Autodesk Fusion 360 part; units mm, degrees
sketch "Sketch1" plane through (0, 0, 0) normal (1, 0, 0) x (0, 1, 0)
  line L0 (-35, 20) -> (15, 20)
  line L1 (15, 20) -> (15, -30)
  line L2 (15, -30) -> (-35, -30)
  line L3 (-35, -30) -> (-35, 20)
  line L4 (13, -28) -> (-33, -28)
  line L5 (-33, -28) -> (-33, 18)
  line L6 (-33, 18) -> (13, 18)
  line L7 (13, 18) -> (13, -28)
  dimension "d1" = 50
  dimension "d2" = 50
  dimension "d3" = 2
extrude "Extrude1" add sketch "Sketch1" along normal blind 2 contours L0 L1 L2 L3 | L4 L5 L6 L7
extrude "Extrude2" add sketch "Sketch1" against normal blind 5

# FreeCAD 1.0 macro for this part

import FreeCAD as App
import Part
import Sketcher

doc = App.newDocument("Part")
body = doc.addObject("PartDesign::Body", "Body")

# Sketch on YZ plane
sketch1 = body.newObject("Sketcher::SketchObject", "Sketch")
sketch1.AttachmentSupport = (doc.getObject("YZ_Plane"), [""])
sketch1.MapMode = "FlatFace"
sketch1.addGeometry([
    Part.LineSegment(App.Vector(15, 20, 0), App.Vector(-35, 20, 0)),
    Part.LineSegment(App.Vector(-35, 20, 0), App.Vector(-35, -30, 0)),
    Part.LineSegment(App.Vector(-35, -30, 0), App.Vector(15, -30, 0)),
    Part.LineSegment(App.Vector(15, -30, 0), App.Vector(15, 20, 0)),
], False)
sketch1.addConstraint([
    Sketcher.Constraint("Coincident", 0, 2, 1, 1),
    Sketcher.Constraint("Coincident", 1, 2, 2, 1),
    Sketcher.Constraint("Coincident", 2, 2, 3, 1),
    Sketcher.Constraint("Coincident", 3, 2, 0, 1),
    Sketcher.Constraint("Horizontal", 0),
    Sketcher.Constraint("Vertical", 1),
    Sketcher.Constraint("Horizontal", 2),
    Sketcher.Constraint("Vertical", 3),
    Sketcher.Constraint("Equal", 2, 1),
    Sketcher.Constraint("DistanceX", 0, 2, 0, 1, 50.0),
    Sketcher.Constraint("DistanceX", 0, 2, -1, 1, 35.0),
    Sketcher.Constraint("DistanceY", -1, 1, 0, 2, 20.0),
])
pad1 = body.newObject("PartDesign::Pad", "Pad")
pad1.Profile = sketch1
pad1.Length = 2

# Sketch on YZ plane
sketch2 = body.newObject("Sketcher::SketchObject", "Sketch001")
sketch2.AttachmentSupport = (doc.getObject("YZ_Plane"), [""])
sketch2.MapMode = "FlatFace"
sketch2.addGeometry([
    Part.LineSegment(App.Vector(15, 20, 0), App.Vector(-35, 20, 0)),  # 0
    Part.LineSegment(App.Vector(-35, 20, 0), App.Vector(-35, -30, 0)),  # 1
    Part.LineSegment(App.Vector(-35, -30, 0), App.Vector(15, -30, 0)),  # 2
    Part.LineSegment(App.Vector(15, -30, 0), App.Vector(15, 20, 0)),  # 3
    Part.LineSegment(App.Vector(13, 18, 0), App.Vector(13, -28, 0)),  # 4
    Part.LineSegment(App.Vector(13, -28, 0), App.Vector(-33, -28, 0)),  # 5
    Part.LineSegment(App.Vector(-33, -28, 0), App.Vector(-33, 18, 0)),  # 6
    Part.LineSegment(App.Vector(-33, 18, 0), App.Vector(13, 18, 0)),  # 7
], False)
sketch2.addConstraint([
    Sketcher.Constraint("Coincident", 0, 2, 1, 1),
    Sketcher.Constraint("Coincident", 1, 2, 2, 1),
    Sketcher.Constraint("Coincident", 2, 2, 3, 1),
    Sketcher.Constraint("Coincident", 3, 2, 0, 1),
    Sketcher.Constraint("Coincident", 4, 2, 5, 1),
    Sketcher.Constraint("Coincident", 5, 2, 6, 1),
    Sketcher.Constraint("Coincident", 6, 2, 7, 1),
    Sketcher.Constraint("Coincident", 7, 2, 4, 1),
    Sketcher.Constraint("Horizontal", 0),
    Sketcher.Constraint("Vertical", 1),
    Sketcher.Constraint("Horizontal", 2),
    Sketcher.Constraint("Vertical", 3),
    Sketcher.Constraint("Vertical", 4),
    Sketcher.Constraint("Horizontal", 5),
    Sketcher.Constraint("Vertical", 6),
    Sketcher.Constraint("Horizontal", 7),
    Sketcher.Constraint("Equal", 2, 1),
    Sketcher.Constraint("Equal", 7, 4),
    Sketcher.Constraint("DistanceX", 0, 2, 0, 1, 50.0),
    Sketcher.Constraint("DistanceX", 4, 2, 2, 2, 2.0),
    Sketcher.Constraint("DistanceY", 2, 2, 4, 2, 2.0),
    Sketcher.Constraint("DistanceX", 1, 2, 5, 2, 2.0),
    Sketcher.Constraint("DistanceX", 0, 2, -1, 1, 35.0),
    Sketcher.Constraint("DistanceY", -1, 1, 0, 2, 20.0),
])
pad2 = body.newObject("PartDesign::Pad", "Pad001")
pad2.Profile = sketch2
pad2.Length = 5
pad2.Reversed = True

doc.recompute()
